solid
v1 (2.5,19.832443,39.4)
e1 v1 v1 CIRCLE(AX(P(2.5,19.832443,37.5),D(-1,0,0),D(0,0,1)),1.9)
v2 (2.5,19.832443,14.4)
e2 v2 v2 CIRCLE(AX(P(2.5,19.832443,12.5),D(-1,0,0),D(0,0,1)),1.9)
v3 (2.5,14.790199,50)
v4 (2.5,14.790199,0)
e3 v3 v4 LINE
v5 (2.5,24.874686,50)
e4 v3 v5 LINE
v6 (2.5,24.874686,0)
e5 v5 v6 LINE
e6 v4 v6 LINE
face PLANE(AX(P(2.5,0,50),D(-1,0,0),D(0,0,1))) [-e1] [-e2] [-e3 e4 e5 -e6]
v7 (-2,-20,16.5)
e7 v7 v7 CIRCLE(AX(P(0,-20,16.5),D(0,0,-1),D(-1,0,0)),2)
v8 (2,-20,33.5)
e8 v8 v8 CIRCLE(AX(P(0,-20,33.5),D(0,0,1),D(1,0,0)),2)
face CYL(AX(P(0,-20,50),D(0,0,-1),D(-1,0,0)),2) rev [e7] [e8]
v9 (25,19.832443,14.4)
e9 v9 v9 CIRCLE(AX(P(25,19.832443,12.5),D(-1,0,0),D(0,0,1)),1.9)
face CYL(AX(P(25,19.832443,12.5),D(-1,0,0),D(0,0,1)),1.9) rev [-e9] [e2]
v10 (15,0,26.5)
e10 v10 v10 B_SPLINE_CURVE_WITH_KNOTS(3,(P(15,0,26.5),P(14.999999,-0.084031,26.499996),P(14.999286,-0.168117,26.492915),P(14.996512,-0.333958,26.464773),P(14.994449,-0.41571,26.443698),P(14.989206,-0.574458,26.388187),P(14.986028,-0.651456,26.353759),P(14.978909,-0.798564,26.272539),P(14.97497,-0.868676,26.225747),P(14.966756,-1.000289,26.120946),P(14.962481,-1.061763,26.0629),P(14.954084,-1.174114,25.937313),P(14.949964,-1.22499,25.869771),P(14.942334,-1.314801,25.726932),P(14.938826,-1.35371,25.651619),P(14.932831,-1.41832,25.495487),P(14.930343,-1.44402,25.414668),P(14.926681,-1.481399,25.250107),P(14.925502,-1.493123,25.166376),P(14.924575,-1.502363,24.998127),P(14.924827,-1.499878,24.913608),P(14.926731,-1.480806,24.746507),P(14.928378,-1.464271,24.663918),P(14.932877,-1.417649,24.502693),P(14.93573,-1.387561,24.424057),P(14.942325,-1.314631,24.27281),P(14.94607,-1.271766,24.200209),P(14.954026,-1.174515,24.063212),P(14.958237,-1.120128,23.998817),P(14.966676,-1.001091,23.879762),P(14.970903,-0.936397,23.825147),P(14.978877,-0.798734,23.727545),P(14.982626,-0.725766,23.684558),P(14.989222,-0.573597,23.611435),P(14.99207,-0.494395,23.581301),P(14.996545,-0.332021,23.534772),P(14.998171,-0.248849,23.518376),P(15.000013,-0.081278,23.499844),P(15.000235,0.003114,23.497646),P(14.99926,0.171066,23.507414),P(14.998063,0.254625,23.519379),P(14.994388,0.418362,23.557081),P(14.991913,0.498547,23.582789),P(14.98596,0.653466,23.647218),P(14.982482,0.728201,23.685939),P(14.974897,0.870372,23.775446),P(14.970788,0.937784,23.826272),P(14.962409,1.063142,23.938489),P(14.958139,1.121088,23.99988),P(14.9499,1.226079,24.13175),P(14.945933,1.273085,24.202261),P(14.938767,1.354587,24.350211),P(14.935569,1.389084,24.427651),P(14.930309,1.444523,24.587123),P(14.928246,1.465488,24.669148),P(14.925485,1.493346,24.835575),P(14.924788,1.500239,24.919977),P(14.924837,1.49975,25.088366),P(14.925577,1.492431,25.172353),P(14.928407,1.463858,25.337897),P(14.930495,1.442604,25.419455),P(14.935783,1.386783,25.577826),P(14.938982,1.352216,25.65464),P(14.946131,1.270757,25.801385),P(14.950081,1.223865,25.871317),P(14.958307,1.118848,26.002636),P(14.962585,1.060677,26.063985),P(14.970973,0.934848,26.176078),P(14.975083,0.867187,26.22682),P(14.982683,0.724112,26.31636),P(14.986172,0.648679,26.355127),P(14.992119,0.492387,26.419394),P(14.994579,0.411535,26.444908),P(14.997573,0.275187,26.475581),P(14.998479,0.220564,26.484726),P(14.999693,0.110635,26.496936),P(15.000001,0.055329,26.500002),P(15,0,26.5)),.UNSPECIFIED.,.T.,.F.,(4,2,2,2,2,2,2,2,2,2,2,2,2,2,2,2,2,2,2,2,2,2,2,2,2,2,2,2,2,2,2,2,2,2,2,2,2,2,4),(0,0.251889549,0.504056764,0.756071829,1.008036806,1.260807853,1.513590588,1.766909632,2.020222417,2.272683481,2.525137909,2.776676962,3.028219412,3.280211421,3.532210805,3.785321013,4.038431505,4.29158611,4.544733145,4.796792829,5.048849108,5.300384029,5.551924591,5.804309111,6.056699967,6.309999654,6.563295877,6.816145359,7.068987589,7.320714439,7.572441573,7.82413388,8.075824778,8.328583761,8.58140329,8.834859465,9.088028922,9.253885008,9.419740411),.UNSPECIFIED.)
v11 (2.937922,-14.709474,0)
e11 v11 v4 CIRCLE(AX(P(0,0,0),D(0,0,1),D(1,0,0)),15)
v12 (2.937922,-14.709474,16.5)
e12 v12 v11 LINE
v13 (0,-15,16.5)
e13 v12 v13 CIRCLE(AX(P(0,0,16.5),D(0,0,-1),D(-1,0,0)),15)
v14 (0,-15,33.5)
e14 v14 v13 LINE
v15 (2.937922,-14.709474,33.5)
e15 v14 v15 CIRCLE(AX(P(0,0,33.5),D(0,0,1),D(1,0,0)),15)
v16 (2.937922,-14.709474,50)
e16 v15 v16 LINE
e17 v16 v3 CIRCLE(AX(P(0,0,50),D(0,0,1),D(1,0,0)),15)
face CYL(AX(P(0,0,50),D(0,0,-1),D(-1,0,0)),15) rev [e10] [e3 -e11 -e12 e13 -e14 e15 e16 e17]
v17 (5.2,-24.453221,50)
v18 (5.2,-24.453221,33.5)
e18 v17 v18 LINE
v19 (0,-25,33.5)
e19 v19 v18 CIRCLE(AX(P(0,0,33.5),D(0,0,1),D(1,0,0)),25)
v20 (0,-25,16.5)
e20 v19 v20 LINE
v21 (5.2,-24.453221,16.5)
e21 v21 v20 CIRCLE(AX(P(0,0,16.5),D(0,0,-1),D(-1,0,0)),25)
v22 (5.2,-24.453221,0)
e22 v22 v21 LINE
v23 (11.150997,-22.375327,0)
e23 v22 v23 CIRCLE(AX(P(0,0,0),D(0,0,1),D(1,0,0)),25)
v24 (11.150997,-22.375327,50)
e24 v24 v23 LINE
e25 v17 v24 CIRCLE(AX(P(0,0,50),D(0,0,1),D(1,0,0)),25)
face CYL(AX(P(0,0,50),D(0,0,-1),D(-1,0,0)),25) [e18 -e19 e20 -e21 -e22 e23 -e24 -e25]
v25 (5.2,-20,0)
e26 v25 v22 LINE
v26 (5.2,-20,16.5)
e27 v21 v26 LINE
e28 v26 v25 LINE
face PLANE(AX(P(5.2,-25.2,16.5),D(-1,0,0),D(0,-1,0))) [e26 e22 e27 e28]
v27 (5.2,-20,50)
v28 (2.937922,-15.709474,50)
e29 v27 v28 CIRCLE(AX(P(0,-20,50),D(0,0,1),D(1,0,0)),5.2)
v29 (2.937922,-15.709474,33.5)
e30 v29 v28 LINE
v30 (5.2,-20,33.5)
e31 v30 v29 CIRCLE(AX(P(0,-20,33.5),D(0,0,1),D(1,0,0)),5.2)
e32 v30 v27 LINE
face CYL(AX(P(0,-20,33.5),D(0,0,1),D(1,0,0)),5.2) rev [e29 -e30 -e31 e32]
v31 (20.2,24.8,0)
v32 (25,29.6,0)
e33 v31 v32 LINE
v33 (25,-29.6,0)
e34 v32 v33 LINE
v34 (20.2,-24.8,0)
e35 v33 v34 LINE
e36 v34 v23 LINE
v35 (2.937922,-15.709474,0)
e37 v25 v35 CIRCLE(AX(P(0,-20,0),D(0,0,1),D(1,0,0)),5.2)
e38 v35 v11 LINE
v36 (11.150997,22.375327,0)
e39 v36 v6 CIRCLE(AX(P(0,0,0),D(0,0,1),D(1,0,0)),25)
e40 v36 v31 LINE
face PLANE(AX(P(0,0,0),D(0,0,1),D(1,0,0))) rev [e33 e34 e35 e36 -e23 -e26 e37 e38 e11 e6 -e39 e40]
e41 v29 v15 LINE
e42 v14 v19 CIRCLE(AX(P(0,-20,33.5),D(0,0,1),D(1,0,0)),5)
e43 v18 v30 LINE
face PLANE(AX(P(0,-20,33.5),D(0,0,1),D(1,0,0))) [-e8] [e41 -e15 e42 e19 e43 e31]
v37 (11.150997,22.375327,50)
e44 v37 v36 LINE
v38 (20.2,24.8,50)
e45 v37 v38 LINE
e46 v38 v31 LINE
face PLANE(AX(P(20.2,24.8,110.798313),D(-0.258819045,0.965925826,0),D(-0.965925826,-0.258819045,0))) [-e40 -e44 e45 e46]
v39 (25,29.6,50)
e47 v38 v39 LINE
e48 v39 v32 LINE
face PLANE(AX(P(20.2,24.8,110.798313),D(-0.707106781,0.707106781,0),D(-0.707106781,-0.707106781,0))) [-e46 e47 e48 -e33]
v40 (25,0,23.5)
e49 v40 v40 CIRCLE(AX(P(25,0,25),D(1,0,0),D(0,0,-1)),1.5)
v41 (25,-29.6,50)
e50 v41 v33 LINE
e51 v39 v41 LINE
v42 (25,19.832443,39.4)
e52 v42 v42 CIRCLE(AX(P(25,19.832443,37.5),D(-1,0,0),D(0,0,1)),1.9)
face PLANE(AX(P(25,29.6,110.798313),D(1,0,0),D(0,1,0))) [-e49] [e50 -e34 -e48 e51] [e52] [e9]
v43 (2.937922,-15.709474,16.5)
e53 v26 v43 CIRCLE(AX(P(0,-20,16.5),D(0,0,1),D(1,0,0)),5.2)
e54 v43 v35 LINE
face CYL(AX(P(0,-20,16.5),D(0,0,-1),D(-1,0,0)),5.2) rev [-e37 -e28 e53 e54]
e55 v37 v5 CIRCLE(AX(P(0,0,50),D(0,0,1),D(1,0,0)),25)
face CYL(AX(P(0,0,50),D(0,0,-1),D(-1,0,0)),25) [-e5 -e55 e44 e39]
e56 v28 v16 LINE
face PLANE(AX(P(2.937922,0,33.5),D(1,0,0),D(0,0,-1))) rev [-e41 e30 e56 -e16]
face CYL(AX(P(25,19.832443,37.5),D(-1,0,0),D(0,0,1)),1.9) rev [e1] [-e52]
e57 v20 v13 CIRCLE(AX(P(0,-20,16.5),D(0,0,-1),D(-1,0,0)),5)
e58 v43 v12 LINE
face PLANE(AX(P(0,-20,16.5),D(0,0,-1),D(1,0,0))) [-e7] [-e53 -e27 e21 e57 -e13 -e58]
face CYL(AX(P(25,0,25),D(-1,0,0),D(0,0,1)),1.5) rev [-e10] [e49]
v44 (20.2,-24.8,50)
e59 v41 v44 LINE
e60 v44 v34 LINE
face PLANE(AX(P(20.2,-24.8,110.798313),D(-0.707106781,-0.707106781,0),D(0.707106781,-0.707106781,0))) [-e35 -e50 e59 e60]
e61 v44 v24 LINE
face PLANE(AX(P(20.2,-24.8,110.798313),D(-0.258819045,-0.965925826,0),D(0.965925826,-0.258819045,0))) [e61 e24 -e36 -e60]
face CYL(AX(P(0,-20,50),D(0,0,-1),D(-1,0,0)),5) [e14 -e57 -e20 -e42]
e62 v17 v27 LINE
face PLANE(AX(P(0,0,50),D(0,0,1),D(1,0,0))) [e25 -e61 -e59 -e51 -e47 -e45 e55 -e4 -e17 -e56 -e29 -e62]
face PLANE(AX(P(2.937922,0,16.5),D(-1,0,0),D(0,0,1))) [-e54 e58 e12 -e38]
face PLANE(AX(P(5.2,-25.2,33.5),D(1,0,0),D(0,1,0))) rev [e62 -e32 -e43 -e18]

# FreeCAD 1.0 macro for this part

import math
import FreeCAD as App
import Part
import Sketcher
Q = App.Units.Quantity


def add_polygon(sketch, points):
    """Adds a closed chain of lines whose ends are joined by coincident constraints."""
    first, n = sketch.GeometryCount, len(points)
    for a, b in zip(points, points[1:] + points[:1]):
        sketch.addGeometry(Part.LineSegment(App.Vector(*a, 0), App.Vector(*b, 0)), False)
    for i in range(n):
        sketch.addConstraint(Sketcher.Constraint("Coincident", first + i, 2, first + (i + 1) % n, 1))

doc = App.newDocument("Part")
body = doc.addObject("PartDesign::Body", "Body")

sketch1 = doc.addObject("Sketcher::SketchObject", "Sketch")
body.addObject(sketch1)
sketch1.AttachmentSupport = (doc.XY_Plane, [""])
sketch1.MapMode = "FlatFace"
sketch1.addGeometry(Part.ArcOfCircle(Part.Circle(App.Vector(0, -20, 0), App.Vector(0, 0, 1), 5), math.radians(90), math.radians(270)), False)
sketch1.addGeometry(Part.ArcOfCircle(Part.Circle(App.Vector(0, 0, 0), App.Vector(0, 0, 1), 25), math.radians(-90), math.radians(84)), False)
sketch1.addGeometry(Part.LineSegment(App.Vector(2.5, 24.9, 0), App.Vector(2.5, 14.8, 0)), False)
sketch1.addGeometry(Part.ArcOfCircle(Part.Circle(App.Vector(0, 0, 0), App.Vector(0, 0, 1), 15), math.radians(-90), math.radians(80)), False)
sketch1.addGeometry(Part.Circle(App.Vector(0, -20, 0), App.Vector(0, 0, 1), 2), False)
sketch1.addConstraint(Sketcher.Constraint("Tangent", 0, 2, 1, 1))
sketch1.addConstraint(Sketcher.Constraint("Coincident", 1, 2, 2, 1))
sketch1.addConstraint(Sketcher.Constraint("Coincident", 2, 2, 3, 2))
sketch1.addConstraint(Sketcher.Constraint("Tangent", 3, 1, 0, 1))
sketch1.addConstraint(Sketcher.Constraint("Vertical", 2))
sketch1.addConstraint(Sketcher.Constraint("Coincident", 1, 3, -1, 1))
sketch1.addConstraint(Sketcher.Constraint("Coincident", 3, 3, -1, 1))
sketch1.addConstraint(Sketcher.Constraint("Coincident", 4, 3, 0, 3))
sketch1.addConstraint(Sketcher.Constraint("PointOnObject", 0, 3, -2))
sketch1.addConstraint(Sketcher.Constraint("Diameter", 4, 4.0))
sketch1.addConstraint(Sketcher.Constraint("Radius", 0, 5.0))
sketch1.addConstraint(Sketcher.Constraint("Radius", 1, 25.0))
sketch1.addConstraint(Sketcher.Constraint("DistanceX", -1, 1, 1, 2, 2.5))
pad1 = doc.addObject("PartDesign::Pad", "Pad")
body.addObject(pad1)
pad1.Profile = sketch1
pad1.Length = 50

sketch2 = doc.addObject("Sketcher::SketchObject", "Sketch001")
body.addObject(sketch2)
sketch2.AttachmentSupport = (doc.XY_Plane, [""])
sketch2.MapMode = "FlatFace"
sketch2.AttachmentOffset = App.Placement(App.Vector(0, 0, 50), App.Rotation())
sketch2.addGeometry(Part.LineSegment(App.Vector(0, -25, 0), App.Vector(5, -25, 0)), False)
sketch2.addGeometry(Part.LineSegment(App.Vector(5, -25, 0), App.Vector(5, -20, 0)), False)
sketch2.addGeometry(Part.ArcOfCircle(Part.Circle(App.Vector(0, -20, 0), App.Vector(0, 0, 1), 5), math.radians(0), math.radians(270)), False)
sketch2.addConstraint(Sketcher.Constraint("Coincident", 0, 2, 1, 1))
sketch2.addConstraint(Sketcher.Constraint("Tangent", 1, 2, 2, 1))
sketch2.addConstraint(Sketcher.Constraint("Tangent", 2, 2, 0, 1))
sketch2.addConstraint(Sketcher.Constraint("Horizontal", 0))
sketch2.addConstraint(Sketcher.Constraint("Vertical", 1))
sketch2.addConstraint(Sketcher.Constraint("PointOnObject", 2, 3, -2))
sketch2.addConstraint(Sketcher.Constraint("Radius", 2, 5.2))
sketch2.addConstraint(Sketcher.Constraint("DistanceY", 2, 3, -1, 1, 20.0))
pocket1 = doc.addObject("PartDesign::Pocket", "Pocket")
body.addObject(pocket1)
pocket1.Profile = sketch2
pocket1.Length = 16.5
doc.recompute()

datumplane = doc.addObject("PartDesign::Plane", "DatumPlane")
body.addObject(datumplane)
datumplane.AttachmentSupport = (doc.XY_Plane, [""])
datumplane.MapMode = "FlatFace"
datumplane.AttachmentOffset = App.Placement(App.Vector(0, 0, 25), App.Rotation())
mirrored = doc.addObject("PartDesign::Mirrored", "Mirrored")
body.addObject(mirrored)
mirrored.Originals = [pocket1]
mirrored.MirrorPlane = (datumplane, [""])
body.Tip = mirrored

sketch3 = doc.addObject("Sketcher::SketchObject", "Sketch002")
body.addObject(sketch3)
sketch3.AttachmentSupport = (doc.XY_Plane, [""])
sketch3.MapMode = "FlatFace"
add_polygon(sketch3, [(11, 22), (20, 25), (25, 30), (25, -30), (20, -25), (11, -22), (20, 0)])
sketch3.addConstraint(Sketcher.Constraint("Vertical", 2))
sketch3.addConstraint(Sketcher.Constraint("Symmetric", 0, 2, 3, 2, -1))
sketch3.addConstraint(Sketcher.Constraint("Symmetric", 4, 2, 6, 2, -1))
sketch3.addConstraint(Sketcher.Constraint("PointOnObject", 5, 2, -1))
sketch3.addConstraint(Sketcher.Constraint("Perpendicular", 1, 3))
sketch3.addConstraint(Sketcher.Constraint("Vertical", 3, 2, 5, 2))
sketch3.addConstraint(Sketcher.Constraint("Equal", 1, 3))
sketch3.addConstraint(Sketcher.Constraint("Angle", 0, Q("15 deg")))
sketch3.addConstraint(Sketcher.Constraint("DistanceY", 2, 2, 2, 1, 59.2))
sketch3.addConstraint(Sketcher.Constraint("DistanceX", -1, 1, 1, 2, 25.0))
sketch3.addConstraint(Sketcher.Constraint("DistanceX", -1, 1, 0, 2, 20.2))
sketch3.addConstraint(Sketcher.Constraint("Distance", 5, 24.135859))
pad2 = doc.addObject("PartDesign::Pad", "Pad001")
body.addObject(pad2)
pad2.Profile = sketch3
pad2.Length = 50

sketch4 = doc.addObject("Sketcher::SketchObject", "Sketch003")
body.addObject(sketch4)
sketch4.AttachmentSupport = (doc.YZ_Plane, [""])
sketch4.MapMode = "FlatFace"
sketch4.AttachmentOffset = App.Placement(App.Vector(0, 0, 2.5), App.Rotation())
sketch4.addGeometry(Part.Circle(App.Vector(19.8, 37.5, 0), App.Vector(0, 0, 1), 1.9), False)
sketch4.addGeometry(Part.Circle(App.Vector(19.8, 12.5, 0), App.Vector(0, 0, 1), 1.9), False)
sketch4.addConstraint(Sketcher.Constraint("Equal", 0, 1))
sketch4.addConstraint(Sketcher.Constraint("Vertical", 0, 3, 1, 3))
sketch4.addConstraint(Sketcher.Constraint("Diameter", 0, 3.8))
sketch4.addConstraint(Sketcher.Constraint("DistanceY", 1, 3, 0, 3, 25.0))
sketch4.addConstraint(Sketcher.Constraint("DistanceY", -1, 1, 0, 3, 37.5))
sketch4.addConstraint(Sketcher.Constraint("DistanceX", -1, 1, 0, 3, 19.832443))
pocket2 = doc.addObject("PartDesign::Pocket", "Pocket001")
body.addObject(pocket2)
pocket2.Profile = sketch4
pocket2.Type = "ThroughAll"
pocket2.Reversed = True

sketch5 = doc.addObject("Sketcher::SketchObject", "Sketch004")
body.addObject(sketch5)
sketch5.AttachmentSupport = (doc.XY_Plane, [""])
sketch5.MapMode = "FlatFace"
sketch5.AttachmentOffset = App.Placement(App.Vector(0, 0, 50), App.Rotation())
sketch5.addGeometry(Part.LineSegment(App.Vector(2.9, -15.7, 0), App.Vector(2.9, -14.7, 0)), False)
sketch5.addGeometry(Part.ArcOfCircle(Part.Circle(App.Vector(0, 0, 0), App.Vector(0, 0, 1), 15), math.radians(-85.27), math.radians(-78.7)), False)
sketch5.addGeometry(Part.ArcOfCircle(Part.Circle(App.Vector(0, -20, 0), App.Vector(0, 0, 1), 5.2), math.radians(56), math.radians(76)), False)
sketch5.addConstraint(Sketcher.Constraint("Coincident", 0, 2, 1, 2))
sketch5.addConstraint(Sketcher.Constraint("Coincident", 1, 1, 2, 2))
sketch5.addConstraint(Sketcher.Constraint("Coincident", 2, 1, 0, 1))
sketch5.addConstraint(Sketcher.Constraint("Vertical", 0))
sketch5.addConstraint(Sketcher.Constraint("Coincident", 1, 3, -1, 1))
sketch5.addConstraint(Sketcher.Constraint("PointOnObject", 2, 3, -2))
sketch5.addConstraint(Sketcher.Constraint("Radius", 1, 15.0))
sketch5.addConstraint(Sketcher.Constraint("Radius", 2, 5.2))
sketch5.addConstraint(Sketcher.Constraint("DistanceY", 0, 1, 0, 2, 1.0))
sketch5.addConstraint(Sketcher.Constraint("DistanceY", 2, 3, -1, 1, 20.0))
pocket3 = doc.addObject("PartDesign::Pocket", "Pocket002")
body.addObject(pocket3)
pocket3.Profile = sketch5
pocket3.Length = 16.5
doc.recompute()

datumplane2 = doc.addObject("PartDesign::Plane", "DatumPlane001")
body.addObject(datumplane2)
datumplane2.AttachmentSupport = (doc.XY_Plane, [""])
datumplane2.MapMode = "FlatFace"
datumplane2.AttachmentOffset = App.Placement(App.Vector(0, 0, 25), App.Rotation())
mirrored2 = doc.addObject("PartDesign::Mirrored", "Mirrored001")
body.addObject(mirrored2)
mirrored2.Originals = [pocket3]
mirrored2.MirrorPlane = (datumplane2, [""])
body.Tip = mirrored2

sketch6 = doc.addObject("Sketcher::SketchObject", "Sketch005")
body.addObject(sketch6)
sketch6.AttachmentSupport = (doc.YZ_Plane, [""])
sketch6.MapMode = "FlatFace"
sketch6.addGeometry(Part.Circle(App.Vector(0, 25, 0), App.Vector(0, 0, 1), 1.5), False)
sketch6.addConstraint(Sketcher.Constraint("PointOnObject", 0, 3, -2))
sketch6.addConstraint(Sketcher.Constraint("Diameter", 0, 3.0))
sketch6.addConstraint(Sketcher.Constraint("DistanceY", -1, 1, 0, 3, 25.0))
pocket4 = doc.addObject("PartDesign::Pocket", "Pocket003")
body.addObject(pocket4)
pocket4.Profile = sketch6
pocket4.Type = "ThroughAll"
pocket4.Reversed = True

doc.recompute()
